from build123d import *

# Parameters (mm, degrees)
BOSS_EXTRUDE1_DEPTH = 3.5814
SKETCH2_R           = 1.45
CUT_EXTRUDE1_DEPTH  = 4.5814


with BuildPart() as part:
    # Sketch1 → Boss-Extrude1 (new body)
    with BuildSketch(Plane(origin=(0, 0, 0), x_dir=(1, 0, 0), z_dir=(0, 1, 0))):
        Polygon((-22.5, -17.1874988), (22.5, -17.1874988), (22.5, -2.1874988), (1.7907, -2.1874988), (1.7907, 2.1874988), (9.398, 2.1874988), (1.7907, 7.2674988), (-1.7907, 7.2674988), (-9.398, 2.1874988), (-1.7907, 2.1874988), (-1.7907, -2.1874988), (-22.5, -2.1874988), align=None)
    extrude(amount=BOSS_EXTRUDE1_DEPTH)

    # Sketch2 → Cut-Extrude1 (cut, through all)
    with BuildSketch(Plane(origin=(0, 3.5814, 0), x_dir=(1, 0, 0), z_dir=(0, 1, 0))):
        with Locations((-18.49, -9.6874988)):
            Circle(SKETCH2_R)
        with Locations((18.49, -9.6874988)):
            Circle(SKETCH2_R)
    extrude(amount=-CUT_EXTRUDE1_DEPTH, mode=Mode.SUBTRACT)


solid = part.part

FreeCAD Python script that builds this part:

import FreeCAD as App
import Part
import Sketcher

V = App.Vector


def add_polygon(sketch, points):
    """Adds a closed chain of lines whose ends are joined by coincident constraints."""
    first, n = sketch.GeometryCount, len(points)
    for a, b in zip(points, points[1:] + points[:1]):
        sketch.addGeometry(Part.LineSegment(App.Vector(*a, 0), App.Vector(*b, 0)), False)
    for i in range(n):
        sketch.addConstraint(Sketcher.Constraint("Coincident", first + i, 2, first + (i + 1) % n, 1))

doc = App.newDocument("Part")
body = doc.addObject("PartDesign::Body", "Body")

sketch1 = doc.addObject("Sketcher::SketchObject", "Sketch")
body.addObject(sketch1)
sketch1.AttachmentSupport = (doc.XZ_Plane, [""])
sketch1.MapMode = "FlatFace"
add_polygon(sketch1, [(-22.5, 17.2), (22.5, 17.2), (22.5, 2.2), (1.8, 2.2), (1.8, -2.2), (9.4, -2.2), (1.8, -7.3), (-1.8, -7.3), (-9.4, -2.2), (-1.8, -2.2), (-1.8, 2.2), (-22.5, 2.2)])
sketch1.addConstraint(Sketcher.Constraint("Horizontal", 0))
sketch1.addConstraint(Sketcher.Constraint("Vertical", 1))
sketch1.addConstraint(Sketcher.Constraint("Horizontal", 2))
sketch1.addConstraint(Sketcher.Constraint("Vertical", 3))
sketch1.addConstraint(Sketcher.Constraint("Horizontal", 4))
sketch1.addConstraint(Sketcher.Constraint("Horizontal", 6))
sketch1.addConstraint(Sketcher.Constraint("Horizontal", 8))
sketch1.addConstraint(Sketcher.Constraint("Vertical", 9))
sketch1.addConstraint(Sketcher.Constraint("Horizontal", 10))
sketch1.addConstraint(Sketcher.Constraint("Vertical", 11))
sketch1.addConstraint(Sketcher.Constraint("Symmetric", 2, 2, 8, 2, -1, 1))
sketch1.addConstraint(Sketcher.Constraint("Symmetric", 4, 2, 7, 2, -2))
sketch1.addConstraint(Sketcher.Constraint("Symmetric", 1, 2, 10, 2, -2))
sketch1.addConstraint(Sketcher.Constraint("Vertical", 3, 2, 5, 2))
sketch1.addConstraint(Sketcher.Constraint("Vertical", 6, 2, 8, 2))
sketch1.addConstraint(Sketcher.Constraint("DistanceX", 0, 1, 0, 2, 45.0))
sketch1.addConstraint(Sketcher.Constraint("DistanceY", 1, 2, 1, 1, 15.0))
sketch1.addConstraint(Sketcher.Constraint("DistanceY", 5, 2, 3, 2, 5.08))
sketch1.addConstraint(Sketcher.Constraint("DistanceX", 2, 2, 2, 1, 20.7093))
sketch1.addConstraint(Sketcher.Constraint("DistanceX", 4, 1, 4, 2, 7.6073))
sketch1.addConstraint(Sketcher.Constraint("DistanceY", -1, 1, 0, 2, 17.187499))
pad1 = doc.addObject("PartDesign::Pad", "Pad")
body.addObject(pad1)
pad1.Profile = sketch1
pad1.Length = 3.5814
pad1.Reversed = True

sketch2 = doc.addObject("Sketcher::SketchObject", "Sketch001")
body.addObject(sketch2)
sketch2.AttachmentSupport = (doc.XZ_Plane, [""])
sketch2.MapMode = "FlatFace"
sketch2.AttachmentOffset = App.Placement(V(0, 0, -3.5814), App.Rotation())
sketch2.addGeometry(Part.Circle(V(-18.5, 9.7, 0), V(0, 0, 1), 1.4), False)
sketch2.addGeometry(Part.Circle(V(18.5, 9.7, 0), V(0, 0, 1), 1.4), False)
sketch2.addConstraint(Sketcher.Constraint("Equal", 0, 1))
sketch2.addConstraint(Sketcher.Constraint("Symmetric", 0, 3, 1, 3, -2))
sketch2.addConstraint(Sketcher.Constraint("Diameter", 0, 2.9))
sketch2.addConstraint(Sketcher.Constraint("DistanceX", 0, 3, -1, 1, 18.49))
sketch2.addConstraint(Sketcher.Constraint("DistanceY", -1, 1, 0, 3, 9.687499))
pocket1 = doc.addObject("PartDesign::Pocket", "Pocket")
body.addObject(pocket1)
pocket1.Profile = sketch2
pocket1.Type = "ThroughAll"
pocket1.Reversed = True

doc.recompute()
